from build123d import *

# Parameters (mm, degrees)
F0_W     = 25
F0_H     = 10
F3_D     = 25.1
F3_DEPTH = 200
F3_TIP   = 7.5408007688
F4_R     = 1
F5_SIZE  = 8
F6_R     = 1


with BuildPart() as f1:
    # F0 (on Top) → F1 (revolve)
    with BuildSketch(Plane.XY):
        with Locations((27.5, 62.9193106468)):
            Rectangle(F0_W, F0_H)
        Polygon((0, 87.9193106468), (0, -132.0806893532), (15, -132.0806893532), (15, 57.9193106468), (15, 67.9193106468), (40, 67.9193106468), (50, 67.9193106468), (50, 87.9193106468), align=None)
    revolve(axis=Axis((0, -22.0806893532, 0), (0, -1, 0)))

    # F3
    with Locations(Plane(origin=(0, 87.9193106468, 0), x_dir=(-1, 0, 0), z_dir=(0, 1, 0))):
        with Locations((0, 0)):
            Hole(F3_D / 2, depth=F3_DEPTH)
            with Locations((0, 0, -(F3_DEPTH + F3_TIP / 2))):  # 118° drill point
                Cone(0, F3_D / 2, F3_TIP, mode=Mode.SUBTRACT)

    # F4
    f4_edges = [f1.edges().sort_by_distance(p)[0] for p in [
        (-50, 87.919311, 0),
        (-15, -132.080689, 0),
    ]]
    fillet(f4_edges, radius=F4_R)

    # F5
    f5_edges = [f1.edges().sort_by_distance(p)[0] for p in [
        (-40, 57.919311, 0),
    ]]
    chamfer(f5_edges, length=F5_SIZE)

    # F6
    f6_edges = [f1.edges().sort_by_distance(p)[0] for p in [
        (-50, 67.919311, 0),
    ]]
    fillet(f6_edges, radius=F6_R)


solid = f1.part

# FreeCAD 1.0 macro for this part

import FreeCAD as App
import Part
import Sketcher

V = App.Vector
Q = App.Units.Quantity


def edges_at(feature, points):
    """Names of the edges that pass closest to the given points."""
    edges = feature.Shape.Edges
    near = lambda p: min(range(len(edges)), key=lambda i: edges[i].distToShape(Part.Vertex(*p))[0])
    return sorted({f"Edge{near(p) + 1}" for p in points})


def add_polygon(sketch, points):
    """Adds a closed chain of lines whose ends are joined by coincident constraints."""
    first, n = sketch.GeometryCount, len(points)
    for a, b in zip(points, points[1:] + points[:1]):
        sketch.addGeometry(Part.LineSegment(App.Vector(*a, 0), App.Vector(*b, 0)), False)
    for i in range(n):
        sketch.addConstraint(Sketcher.Constraint("Coincident", first + i, 2, first + (i + 1) % n, 1))

doc = App.newDocument("Part")
body = doc.addObject("PartDesign::Body", "Body")

# Sketch on XY plane
sketch1 = body.newObject("Sketcher::SketchObject", "Sketch")
sketch1.AttachmentSupport = (doc.getObject("XY_Plane"), [""])
sketch1.MapMode = "FlatFace"
add_polygon(sketch1, [(15, 57.919311), (40, 57.919311), (40, 67.919311), (50, 67.919311), (50, 87.919311), (0, 87.919311), (0, -132.080689), (15, -132.080689)])  # lines 0-7
sketch1.addConstraint([
    Sketcher.Constraint("Horizontal", 0),
    Sketcher.Constraint("Vertical", 1),
    Sketcher.Constraint("Horizontal", 2),
    Sketcher.Constraint("Vertical", 3),
    Sketcher.Constraint("Horizontal", 4),
    Sketcher.Constraint("Vertical", 5),
    Sketcher.Constraint("Horizontal", 6),
    Sketcher.Constraint("Vertical", 7),
    Sketcher.Constraint("PointOnObject", 4, 2, -2),
    Sketcher.Constraint("Equal", 2, 1),
    Sketcher.Constraint("DistanceX", 0, 1, 0, 2, Q("25 mm")),
    Sketcher.Constraint("DistanceX", 2, 1, 2, 2, Q("10 mm")),
    Sketcher.Constraint("DistanceX", 4, 2, 4, 1, Q("50 mm")),
    Sketcher.Constraint("DistanceY", 3, 1, 3, 2, Q("20 mm")),
    Sketcher.Constraint("DistanceY", 5, 2, 5, 1, Q("220 mm")),
    Sketcher.Constraint("DistanceY", -1, 1, 0, 2, Q("57.919311 mm")),
])
revolution = body.newObject("PartDesign::Revolution", "Revolution")
revolution.Profile = sketch1
revolution.ReferenceAxis = (sketch1, ["V_Axis"])
revolution.Angle = 360

# Sketch on XZ plane
sketch2 = body.newObject("Sketcher::SketchObject", "Sketch001")
sketch2.AttachmentSupport = (doc.getObject("XZ_Plane"), [""])
sketch2.MapMode = "FlatFace"
sketch2.AttachmentOffset = App.Placement(V(0, 0, -87.919311), App.Rotation())
sketch2.addGeometry(Part.Circle(V(0, 0, 0), V(0, 0, 1), 12.55), False)
sketch2.addConstraint([
    Sketcher.Constraint("Coincident", 0, 3, -1, 1),
    Sketcher.Constraint("Diameter", 0, Q("25.1 mm")),
])
doc.recompute()
hole = body.newObject("PartDesign::Hole", "Hole")
hole.Profile = sketch2
hole.ThreadType = "None"
hole.Diameter = 25.1
hole.DepthType = "Dimension"
hole.Depth = 200
hole.DrillPoint = "Angled"
hole.DrillPointAngle = 118
hole.Reversed = True
doc.recompute()

fillet = body.newObject("PartDesign::Fillet", "Fillet")
fillet.Base = (hole, edges_at(hole, [(-50, 87.919, 0), (-15, -132.081, 0)]))
fillet.Radius = 1
doc.recompute()

chamfer = body.newObject("PartDesign::Chamfer", "Chamfer")
chamfer.Base = (fillet, edges_at(fillet, [(-40, 57.919, 0)]))
chamfer.Size = 8
doc.recompute()

fillet2 = body.newObject("PartDesign::Fillet", "Fillet001")
fillet2.Base = (chamfer, edges_at(chamfer, [(-50, 67.919, 0)]))
fillet2.Radius = 1

doc.recompute()
